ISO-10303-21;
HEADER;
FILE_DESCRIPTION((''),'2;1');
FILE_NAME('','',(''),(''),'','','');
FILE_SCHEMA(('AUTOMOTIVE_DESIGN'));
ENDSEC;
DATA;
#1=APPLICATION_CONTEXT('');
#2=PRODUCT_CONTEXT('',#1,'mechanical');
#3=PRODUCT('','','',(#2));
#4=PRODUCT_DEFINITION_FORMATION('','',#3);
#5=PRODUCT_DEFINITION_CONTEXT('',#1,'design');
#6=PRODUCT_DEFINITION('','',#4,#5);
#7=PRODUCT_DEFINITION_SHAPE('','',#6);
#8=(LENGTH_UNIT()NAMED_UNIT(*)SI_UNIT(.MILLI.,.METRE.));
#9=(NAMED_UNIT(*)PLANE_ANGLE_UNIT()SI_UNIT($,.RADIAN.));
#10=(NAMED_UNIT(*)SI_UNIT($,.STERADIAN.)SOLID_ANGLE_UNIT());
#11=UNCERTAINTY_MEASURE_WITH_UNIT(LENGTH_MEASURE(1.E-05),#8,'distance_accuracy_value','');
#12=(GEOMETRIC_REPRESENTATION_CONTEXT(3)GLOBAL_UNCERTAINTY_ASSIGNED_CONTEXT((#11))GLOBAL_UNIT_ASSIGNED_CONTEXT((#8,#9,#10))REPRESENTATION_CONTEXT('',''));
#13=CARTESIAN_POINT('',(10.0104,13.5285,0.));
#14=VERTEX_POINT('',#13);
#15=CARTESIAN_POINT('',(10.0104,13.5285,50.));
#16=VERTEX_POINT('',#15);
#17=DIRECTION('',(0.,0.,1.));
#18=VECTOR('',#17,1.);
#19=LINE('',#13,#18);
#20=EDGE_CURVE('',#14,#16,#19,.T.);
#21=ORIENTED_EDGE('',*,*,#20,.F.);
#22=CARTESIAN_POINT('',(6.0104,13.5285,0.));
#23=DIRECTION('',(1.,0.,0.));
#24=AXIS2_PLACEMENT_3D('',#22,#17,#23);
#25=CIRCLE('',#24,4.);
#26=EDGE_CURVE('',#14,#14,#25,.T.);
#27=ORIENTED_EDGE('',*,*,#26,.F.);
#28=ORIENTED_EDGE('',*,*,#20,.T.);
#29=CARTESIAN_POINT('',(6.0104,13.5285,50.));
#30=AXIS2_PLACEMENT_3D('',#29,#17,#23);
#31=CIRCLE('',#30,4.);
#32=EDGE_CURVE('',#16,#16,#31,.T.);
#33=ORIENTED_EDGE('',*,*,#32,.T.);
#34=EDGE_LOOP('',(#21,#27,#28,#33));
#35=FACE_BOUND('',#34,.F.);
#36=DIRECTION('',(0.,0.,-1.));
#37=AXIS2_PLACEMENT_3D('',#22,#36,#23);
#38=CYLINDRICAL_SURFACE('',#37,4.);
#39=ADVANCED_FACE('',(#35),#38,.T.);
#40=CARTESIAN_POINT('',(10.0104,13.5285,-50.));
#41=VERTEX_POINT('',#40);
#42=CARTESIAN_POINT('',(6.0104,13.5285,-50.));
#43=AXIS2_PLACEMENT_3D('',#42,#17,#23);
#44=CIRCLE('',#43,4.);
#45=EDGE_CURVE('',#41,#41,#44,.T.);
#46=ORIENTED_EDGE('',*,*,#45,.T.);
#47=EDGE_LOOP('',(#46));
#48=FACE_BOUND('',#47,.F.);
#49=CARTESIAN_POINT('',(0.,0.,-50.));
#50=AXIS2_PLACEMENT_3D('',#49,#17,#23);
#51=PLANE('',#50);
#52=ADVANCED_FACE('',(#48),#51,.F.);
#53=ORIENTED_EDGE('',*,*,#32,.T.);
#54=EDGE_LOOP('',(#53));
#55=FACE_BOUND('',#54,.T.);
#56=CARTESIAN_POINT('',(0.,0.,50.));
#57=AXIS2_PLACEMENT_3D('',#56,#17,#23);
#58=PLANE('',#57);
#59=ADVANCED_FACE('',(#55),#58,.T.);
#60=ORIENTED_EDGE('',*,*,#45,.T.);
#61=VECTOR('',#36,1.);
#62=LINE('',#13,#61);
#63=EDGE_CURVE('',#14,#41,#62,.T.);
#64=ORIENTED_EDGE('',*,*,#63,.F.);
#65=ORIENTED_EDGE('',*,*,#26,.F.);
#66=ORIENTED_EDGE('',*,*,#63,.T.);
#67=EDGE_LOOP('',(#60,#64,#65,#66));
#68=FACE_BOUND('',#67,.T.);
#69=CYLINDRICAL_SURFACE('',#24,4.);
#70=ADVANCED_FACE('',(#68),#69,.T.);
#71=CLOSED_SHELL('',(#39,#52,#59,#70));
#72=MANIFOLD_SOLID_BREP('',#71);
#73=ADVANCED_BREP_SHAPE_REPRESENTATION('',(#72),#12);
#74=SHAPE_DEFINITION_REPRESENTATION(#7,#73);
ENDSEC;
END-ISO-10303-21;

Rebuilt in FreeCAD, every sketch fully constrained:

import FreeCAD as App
import Part
import Sketcher

doc = App.newDocument("Part")
body = doc.addObject("PartDesign::Body", "Body")

# Sketch on XY plane
sketch1 = doc.addObject("Sketcher::SketchObject", "Sketch")
body.addObject(sketch1)
sketch1.AttachmentSupport = (doc.XY_Plane, [""])
sketch1.MapMode = "FlatFace"
sketch1.addGeometry(Part.Circle(App.Vector(6, 13.5, 0), App.Vector(0, 0, 1), 4), False)
sketch1.addConstraint([
    Sketcher.Constraint("Diameter", 0, 8.0),
    Sketcher.Constraint("DistanceX", -1, 1, 0, 3, 6.0104),
    Sketcher.Constraint("DistanceY", -1, 1, 0, 3, 13.5285),
])
pad1 = doc.addObject("PartDesign::Pad", "Pad")
body.addObject(pad1)
pad1.Profile = sketch1
pad1.Length = 100
pad1.Midplane = True

doc.recompute()
